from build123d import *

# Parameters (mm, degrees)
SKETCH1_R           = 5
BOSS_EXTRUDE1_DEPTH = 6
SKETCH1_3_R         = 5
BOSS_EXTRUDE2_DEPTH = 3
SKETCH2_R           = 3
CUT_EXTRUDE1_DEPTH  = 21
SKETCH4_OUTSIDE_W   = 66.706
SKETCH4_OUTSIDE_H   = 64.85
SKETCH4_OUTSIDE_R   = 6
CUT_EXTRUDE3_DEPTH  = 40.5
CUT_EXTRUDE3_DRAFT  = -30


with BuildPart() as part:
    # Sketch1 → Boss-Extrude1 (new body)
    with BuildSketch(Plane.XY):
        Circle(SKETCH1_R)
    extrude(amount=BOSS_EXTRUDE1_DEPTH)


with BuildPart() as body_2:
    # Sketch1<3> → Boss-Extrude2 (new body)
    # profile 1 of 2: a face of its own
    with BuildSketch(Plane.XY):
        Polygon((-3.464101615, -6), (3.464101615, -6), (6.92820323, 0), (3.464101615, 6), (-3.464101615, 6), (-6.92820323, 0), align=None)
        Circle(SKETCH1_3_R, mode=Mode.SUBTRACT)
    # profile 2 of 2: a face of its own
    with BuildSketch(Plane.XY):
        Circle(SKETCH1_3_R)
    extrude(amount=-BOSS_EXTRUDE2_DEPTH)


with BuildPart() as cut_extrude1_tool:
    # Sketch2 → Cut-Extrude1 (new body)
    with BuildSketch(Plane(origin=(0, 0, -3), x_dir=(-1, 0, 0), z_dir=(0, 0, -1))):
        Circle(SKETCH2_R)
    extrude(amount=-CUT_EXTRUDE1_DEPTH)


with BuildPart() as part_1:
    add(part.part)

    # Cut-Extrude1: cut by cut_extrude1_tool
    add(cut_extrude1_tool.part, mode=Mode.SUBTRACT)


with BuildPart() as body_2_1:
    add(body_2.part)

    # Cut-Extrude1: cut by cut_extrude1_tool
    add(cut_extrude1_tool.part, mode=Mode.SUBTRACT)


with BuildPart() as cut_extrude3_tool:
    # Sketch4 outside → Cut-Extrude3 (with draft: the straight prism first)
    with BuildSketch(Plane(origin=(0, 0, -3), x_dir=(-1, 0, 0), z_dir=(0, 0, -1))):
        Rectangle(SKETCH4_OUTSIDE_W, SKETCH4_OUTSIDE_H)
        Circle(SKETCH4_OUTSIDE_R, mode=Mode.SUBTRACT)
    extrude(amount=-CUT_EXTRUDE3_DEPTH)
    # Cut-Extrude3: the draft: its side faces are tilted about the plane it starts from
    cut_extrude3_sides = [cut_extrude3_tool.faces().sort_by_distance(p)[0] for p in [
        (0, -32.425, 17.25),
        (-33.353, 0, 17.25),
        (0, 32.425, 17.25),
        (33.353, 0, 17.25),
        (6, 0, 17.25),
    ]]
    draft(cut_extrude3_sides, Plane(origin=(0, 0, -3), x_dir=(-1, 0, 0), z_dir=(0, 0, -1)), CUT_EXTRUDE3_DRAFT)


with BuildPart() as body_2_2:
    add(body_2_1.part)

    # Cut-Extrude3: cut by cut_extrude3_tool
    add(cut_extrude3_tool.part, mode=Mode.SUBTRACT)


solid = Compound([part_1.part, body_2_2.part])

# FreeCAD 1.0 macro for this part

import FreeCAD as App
import Part
import Sketcher

V = App.Vector
Q = App.Units.Quantity


def faces_at(feature, points):
    """Names of the faces that lie closest to the given points."""
    faces = feature.Shape.Faces
    near = lambda p: min(range(len(faces)), key=lambda i: faces[i].distToShape(Part.Vertex(*p))[0])
    return sorted({f"Face{near(p) + 1}" for p in points})


def add_polygon(sketch, points):
    """Adds a closed chain of lines whose ends are joined by coincident constraints."""
    first, n = sketch.GeometryCount, len(points)
    for a, b in zip(points, points[1:] + points[:1]):
        sketch.addGeometry(Part.LineSegment(App.Vector(*a, 0), App.Vector(*b, 0)), False)
    for i in range(n):
        sketch.addConstraint(Sketcher.Constraint("Coincident", first + i, 2, first + (i + 1) % n, 1))

doc = App.newDocument("Part")
body = doc.addObject("PartDesign::Body", "Body")

# Sketch on XY plane
sketch1 = body.newObject("Sketcher::SketchObject", "Sketch")
sketch1.AttachmentSupport = (doc.getObject("XY_Plane"), [""])
sketch1.MapMode = "FlatFace"
sketch1.addGeometry(Part.Circle(V(0, 0, 0), V(0, 0, 1), 5), False)
sketch1.addConstraint(Sketcher.Constraint("Coincident", 0, 3, -1, 1))
sketch1.addConstraint(Sketcher.Constraint("Diameter", 0, 10.0))
pad1 = body.newObject("PartDesign::Pad", "Pad")
pad1.Profile = sketch1
pad1.Length = 6
body2 = doc.addObject("PartDesign::Body", "Body001")

# Sketch on XY plane
sketch2 = body2.newObject("Sketcher::SketchObject", "Sketch001")
sketch2.AttachmentSupport = (doc.getObject("XY_Plane001"), [""])
sketch2.MapMode = "FlatFace"
add_polygon(sketch2, [(-3, -6), (3, -6), (7, 0), (3, 6), (-3, 6), (-7, 0)])  # lines 0-5
sketch2.addConstraint(Sketcher.Constraint("Horizontal", 0))
sketch2.addConstraint(Sketcher.Constraint("Horizontal", 3))
sketch2.addConstraint(Sketcher.Constraint("Symmetric", 0, 2, 3, 2, -1, 1))
sketch2.addConstraint(Sketcher.Constraint("Symmetric", 1, 2, 4, 2, -1, 1))
sketch2.addConstraint(Sketcher.Constraint("PointOnObject", 1, 2, -1))
sketch2.addConstraint(Sketcher.Constraint("Parallel", 2, 5))
sketch2.addConstraint(Sketcher.Constraint("Vertical", 0, 2, 2, 2))
sketch2.addConstraint(Sketcher.Constraint("Angle", 1, Q("60 deg")))
sketch2.addConstraint(Sketcher.Constraint("DistanceY", 0, 2, -1, 1, 6.0))
sketch2.addConstraint(Sketcher.Constraint("DistanceX", -1, 1, 0, 2, 3.464102))
pad2 = body2.newObject("PartDesign::Pad", "Pad001")
pad2.Profile = sketch2
pad2.Length = 3
pad2.Reversed = True
body3 = doc.addObject("PartDesign::Body", "Body002")

# Sketch on XY plane
sketch3 = body3.newObject("Sketcher::SketchObject", "Sketch002")
sketch3.AttachmentSupport = (doc.getObject("XY_Plane002"), [""])
sketch3.MapMode = "FlatFace"
sketch3.AttachmentOffset = App.Placement(V(0, 0, -3), App.Rotation())
sketch3.addGeometry(Part.Circle(V(0, 0, 0), V(0, 0, 1), 3), False)
sketch3.addConstraint(Sketcher.Constraint("Coincident", 0, 3, -1, 1))
sketch3.addConstraint(Sketcher.Constraint("Diameter", 0, 6.0))
pad3 = body3.newObject("PartDesign::Pad", "Pad002")
pad3.Profile = sketch3
pad3.Length = 21
doc.recompute()

body4 = doc.addObject("PartDesign::Body", "Body003")
body4.BaseFeature = body3
boolean = body.newObject("PartDesign::Boolean", "Boolean")
boolean.Type = "Cut"
boolean.addObjects([body4])
doc.recompute()

boolean2 = body2.newObject("PartDesign::Boolean", "Boolean001")
boolean2.Type = "Cut"
boolean2.addObjects([body3])
body5 = doc.addObject("PartDesign::Body", "Body004")

# Sketch on XY plane
sketch4 = body5.newObject("Sketcher::SketchObject", "Sketch003")
sketch4.AttachmentSupport = (doc.getObject("XY_Plane004"), [""])
sketch4.MapMode = "FlatFace"
sketch4.AttachmentOffset = App.Placement(V(0, 0, -3), App.Rotation())
add_polygon(sketch4, [(33, 32), (33, -32), (-33, -32), (-33, 32)])  # lines 0-3
sketch4.addGeometry(Part.Circle(V(0, 0, 0), V(0, 0, 1), 6), False)  # 4
sketch4.addConstraint(Sketcher.Constraint("Vertical", 0))
sketch4.addConstraint(Sketcher.Constraint("Horizontal", 1))
sketch4.addConstraint(Sketcher.Constraint("Vertical", 2))
sketch4.addConstraint(Sketcher.Constraint("Horizontal", 3))
sketch4.addConstraint(Sketcher.Constraint("Coincident", 4, 3, -1, 1))
sketch4.addConstraint(Sketcher.Constraint("Symmetric", 0, 2, 2, 2, -1, 1))
sketch4.addConstraint(Sketcher.Constraint("Diameter", 4, 12.0))
sketch4.addConstraint(Sketcher.Constraint("DistanceY", 0, 2, 0, 1, 64.85))
sketch4.addConstraint(Sketcher.Constraint("DistanceX", 1, 2, 1, 1, 66.706))
pad4 = body5.newObject("PartDesign::Pad", "Pad003")
pad4.Profile = sketch4
pad4.Length = 40.5
doc.recompute()

datumplane = body5.newObject("PartDesign::Plane", "DatumPlane")
datumplane.AttachmentSupport = (doc.getObject("XY_Plane004"), [""])
datumplane.MapMode = "FlatFace"
datumplane.AttachmentOffset = App.Placement(V(0, 0, -3), App.Rotation())
draft = body5.newObject("PartDesign::Draft", "Draft")
draft.Base = (pad4, faces_at(pad4, [
    (0, -32.425, 17.25),
    (-33.353, 0, 17.25),
    (0, 32.425, 17.25),
    (33.353, 0, 17.25),
    (6, 0, 17.25),
]))
draft.NeutralPlane = (datumplane, [""])
draft.Angle = 30
draft.Reversed = False
doc.recompute()

boolean3 = body2.newObject("PartDesign::Boolean", "Boolean002")
boolean3.Type = "Cut"
boolean3.addObjects([body5])

doc.recompute()
